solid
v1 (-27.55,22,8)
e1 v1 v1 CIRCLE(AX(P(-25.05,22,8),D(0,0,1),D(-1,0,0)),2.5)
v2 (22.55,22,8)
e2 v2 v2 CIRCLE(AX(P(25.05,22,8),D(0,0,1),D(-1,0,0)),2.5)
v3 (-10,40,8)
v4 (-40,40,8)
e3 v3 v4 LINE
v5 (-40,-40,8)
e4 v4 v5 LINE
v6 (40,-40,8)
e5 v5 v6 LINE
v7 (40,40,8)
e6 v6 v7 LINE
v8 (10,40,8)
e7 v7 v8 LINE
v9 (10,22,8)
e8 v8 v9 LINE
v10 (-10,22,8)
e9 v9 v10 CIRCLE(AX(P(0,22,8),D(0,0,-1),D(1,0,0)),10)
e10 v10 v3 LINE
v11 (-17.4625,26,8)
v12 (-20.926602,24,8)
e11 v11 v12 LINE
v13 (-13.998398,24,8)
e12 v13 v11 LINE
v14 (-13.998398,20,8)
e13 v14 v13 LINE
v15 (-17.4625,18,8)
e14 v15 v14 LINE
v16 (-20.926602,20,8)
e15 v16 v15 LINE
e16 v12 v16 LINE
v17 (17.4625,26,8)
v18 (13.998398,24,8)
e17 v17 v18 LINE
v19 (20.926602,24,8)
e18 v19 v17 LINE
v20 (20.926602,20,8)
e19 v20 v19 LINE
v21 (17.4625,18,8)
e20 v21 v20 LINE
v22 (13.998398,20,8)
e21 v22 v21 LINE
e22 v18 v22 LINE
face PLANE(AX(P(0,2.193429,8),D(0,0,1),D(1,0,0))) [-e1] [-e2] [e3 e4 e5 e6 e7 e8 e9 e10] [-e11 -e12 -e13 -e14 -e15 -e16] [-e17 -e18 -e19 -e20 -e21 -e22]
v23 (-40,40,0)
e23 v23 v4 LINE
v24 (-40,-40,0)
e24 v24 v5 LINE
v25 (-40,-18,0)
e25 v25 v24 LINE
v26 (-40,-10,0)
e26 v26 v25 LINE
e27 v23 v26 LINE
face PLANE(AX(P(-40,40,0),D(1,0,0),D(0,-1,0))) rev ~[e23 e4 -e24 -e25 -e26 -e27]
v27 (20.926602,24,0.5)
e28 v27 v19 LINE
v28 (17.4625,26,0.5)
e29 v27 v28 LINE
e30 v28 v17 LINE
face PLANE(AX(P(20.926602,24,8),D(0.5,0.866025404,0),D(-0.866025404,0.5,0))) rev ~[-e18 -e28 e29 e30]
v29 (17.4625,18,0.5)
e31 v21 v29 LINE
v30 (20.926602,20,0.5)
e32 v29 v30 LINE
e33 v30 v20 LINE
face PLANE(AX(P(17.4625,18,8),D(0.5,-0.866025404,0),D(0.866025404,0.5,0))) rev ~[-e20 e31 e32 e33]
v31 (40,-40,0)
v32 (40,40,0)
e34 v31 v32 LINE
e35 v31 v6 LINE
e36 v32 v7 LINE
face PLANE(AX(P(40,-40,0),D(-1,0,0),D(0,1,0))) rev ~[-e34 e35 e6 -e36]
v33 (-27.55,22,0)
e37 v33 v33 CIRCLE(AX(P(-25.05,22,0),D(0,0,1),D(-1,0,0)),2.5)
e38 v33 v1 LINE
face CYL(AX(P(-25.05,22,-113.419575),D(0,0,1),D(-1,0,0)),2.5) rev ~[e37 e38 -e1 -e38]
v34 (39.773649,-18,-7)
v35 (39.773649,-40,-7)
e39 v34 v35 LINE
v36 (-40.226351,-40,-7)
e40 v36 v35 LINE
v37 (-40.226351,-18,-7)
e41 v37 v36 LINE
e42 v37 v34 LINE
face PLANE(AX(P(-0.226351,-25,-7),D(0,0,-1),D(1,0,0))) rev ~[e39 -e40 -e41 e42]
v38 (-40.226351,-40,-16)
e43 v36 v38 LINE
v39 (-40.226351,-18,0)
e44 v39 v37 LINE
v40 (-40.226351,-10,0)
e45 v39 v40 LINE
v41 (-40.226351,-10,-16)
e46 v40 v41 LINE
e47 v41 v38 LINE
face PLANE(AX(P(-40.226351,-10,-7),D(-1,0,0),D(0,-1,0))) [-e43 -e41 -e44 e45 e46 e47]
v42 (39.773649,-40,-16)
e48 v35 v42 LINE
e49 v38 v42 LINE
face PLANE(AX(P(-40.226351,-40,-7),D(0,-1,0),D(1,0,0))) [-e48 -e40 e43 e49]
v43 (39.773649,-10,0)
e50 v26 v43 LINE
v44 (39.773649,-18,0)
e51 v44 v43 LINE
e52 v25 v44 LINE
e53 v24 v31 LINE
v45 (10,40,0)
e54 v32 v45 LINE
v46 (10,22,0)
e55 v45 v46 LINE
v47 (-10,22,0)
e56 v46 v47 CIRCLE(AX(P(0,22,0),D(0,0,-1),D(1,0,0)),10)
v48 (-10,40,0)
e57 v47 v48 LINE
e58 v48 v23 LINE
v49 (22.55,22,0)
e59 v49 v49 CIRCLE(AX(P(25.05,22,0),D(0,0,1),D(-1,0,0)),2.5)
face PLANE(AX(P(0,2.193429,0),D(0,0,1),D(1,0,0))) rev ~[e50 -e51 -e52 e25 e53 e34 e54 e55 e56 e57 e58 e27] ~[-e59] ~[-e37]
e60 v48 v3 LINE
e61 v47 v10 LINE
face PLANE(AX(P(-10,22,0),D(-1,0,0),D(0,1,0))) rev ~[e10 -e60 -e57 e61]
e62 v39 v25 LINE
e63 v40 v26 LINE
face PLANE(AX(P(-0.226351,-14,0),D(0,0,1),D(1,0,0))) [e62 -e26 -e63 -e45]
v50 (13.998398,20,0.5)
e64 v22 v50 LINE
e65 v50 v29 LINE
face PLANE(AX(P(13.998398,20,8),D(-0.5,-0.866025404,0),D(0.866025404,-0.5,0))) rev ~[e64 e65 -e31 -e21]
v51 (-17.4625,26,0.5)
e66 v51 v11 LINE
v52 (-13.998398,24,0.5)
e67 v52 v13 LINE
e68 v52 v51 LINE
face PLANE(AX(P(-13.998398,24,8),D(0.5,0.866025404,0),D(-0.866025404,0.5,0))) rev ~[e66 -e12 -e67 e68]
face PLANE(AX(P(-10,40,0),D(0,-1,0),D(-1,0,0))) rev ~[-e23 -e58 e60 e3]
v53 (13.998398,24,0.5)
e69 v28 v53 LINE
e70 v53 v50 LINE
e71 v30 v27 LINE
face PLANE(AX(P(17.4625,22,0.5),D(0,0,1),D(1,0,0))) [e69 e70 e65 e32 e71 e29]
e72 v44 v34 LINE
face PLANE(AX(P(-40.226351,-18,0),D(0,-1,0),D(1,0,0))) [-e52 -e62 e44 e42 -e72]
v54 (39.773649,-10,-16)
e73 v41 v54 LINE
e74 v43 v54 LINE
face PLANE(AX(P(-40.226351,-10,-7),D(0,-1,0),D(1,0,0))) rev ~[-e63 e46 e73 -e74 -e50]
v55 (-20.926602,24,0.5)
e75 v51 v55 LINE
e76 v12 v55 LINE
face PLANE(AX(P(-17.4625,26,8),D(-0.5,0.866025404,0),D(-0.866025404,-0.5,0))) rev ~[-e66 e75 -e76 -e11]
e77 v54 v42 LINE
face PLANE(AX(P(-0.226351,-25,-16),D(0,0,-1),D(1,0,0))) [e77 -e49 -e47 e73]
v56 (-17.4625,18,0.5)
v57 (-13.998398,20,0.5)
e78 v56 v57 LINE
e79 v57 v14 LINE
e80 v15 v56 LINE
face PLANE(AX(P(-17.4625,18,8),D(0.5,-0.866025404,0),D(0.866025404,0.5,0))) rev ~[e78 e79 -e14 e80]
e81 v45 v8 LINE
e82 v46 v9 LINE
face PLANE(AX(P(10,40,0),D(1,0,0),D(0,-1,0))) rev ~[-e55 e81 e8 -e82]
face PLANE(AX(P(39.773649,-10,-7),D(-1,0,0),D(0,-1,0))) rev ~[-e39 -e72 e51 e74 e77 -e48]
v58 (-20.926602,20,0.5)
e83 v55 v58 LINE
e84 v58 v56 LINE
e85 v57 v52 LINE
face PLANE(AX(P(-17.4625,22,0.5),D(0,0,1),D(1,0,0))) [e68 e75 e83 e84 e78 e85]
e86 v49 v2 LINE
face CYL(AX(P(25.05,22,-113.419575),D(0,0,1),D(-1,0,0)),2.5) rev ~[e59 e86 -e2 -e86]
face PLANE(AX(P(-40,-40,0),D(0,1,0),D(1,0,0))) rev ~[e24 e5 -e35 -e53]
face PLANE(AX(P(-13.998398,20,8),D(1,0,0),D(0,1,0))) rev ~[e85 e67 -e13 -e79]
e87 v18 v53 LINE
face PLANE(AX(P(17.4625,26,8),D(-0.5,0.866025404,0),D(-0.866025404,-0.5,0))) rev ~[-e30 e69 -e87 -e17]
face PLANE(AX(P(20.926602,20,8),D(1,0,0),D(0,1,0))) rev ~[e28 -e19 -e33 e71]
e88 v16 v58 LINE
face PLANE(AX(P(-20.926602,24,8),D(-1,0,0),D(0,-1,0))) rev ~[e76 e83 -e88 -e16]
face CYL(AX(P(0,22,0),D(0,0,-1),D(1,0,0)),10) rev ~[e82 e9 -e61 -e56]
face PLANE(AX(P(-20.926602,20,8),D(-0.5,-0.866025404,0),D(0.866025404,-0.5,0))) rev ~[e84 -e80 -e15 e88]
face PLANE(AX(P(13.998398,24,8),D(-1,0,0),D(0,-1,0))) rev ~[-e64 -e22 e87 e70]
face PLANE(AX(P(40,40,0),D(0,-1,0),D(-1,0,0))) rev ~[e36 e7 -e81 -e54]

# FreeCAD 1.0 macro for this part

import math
import FreeCAD as App
import Part
import Sketcher
from FreeCAD import Vector
Q = App.Units.Quantity


def add_polygon(sketch, points):
    """Adds a closed chain of lines whose ends are joined by coincident constraints."""
    first, n = sketch.GeometryCount, len(points)
    for a, b in zip(points, points[1:] + points[:1]):
        sketch.addGeometry(Part.LineSegment(App.Vector(*a, 0), App.Vector(*b, 0)), False)
    for i in range(n):
        sketch.addConstraint(Sketcher.Constraint("Coincident", first + i, 2, first + (i + 1) % n, 1))

doc = App.newDocument("Part")
body = doc.addObject("PartDesign::Body", "Body")

sketch1 = body.newObject("Sketcher::SketchObject", "Sketch")
sketch1.AttachmentSupport = (doc.getObject("XY_Plane"), [""])
sketch1.MapMode = "FlatFace"
sketch1.addGeometry([
    Part.LineSegment(Vector(40, -40, 0), Vector(40, 40, 0)),
    Part.LineSegment(Vector(40, 40, 0), Vector(10, 40, 0)),
    Part.LineSegment(Vector(10, 40, 0), Vector(10, 22, 0)),
    Part.ArcOfCircle(Part.Circle(Vector(0, 22, 0), Vector(0, 0, 1), 10), math.radians(180), math.radians(360)),
    Part.LineSegment(Vector(-10, 22, 0), Vector(-10, 40, 0)),
    Part.LineSegment(Vector(-10, 40, 0), Vector(-40, 40, 0)),
    Part.LineSegment(Vector(-40, 40, 0), Vector(-40, -40, 0)),
    Part.LineSegment(Vector(-40, -40, 0), Vector(40, -40, 0)),
], False)
sketch1.addConstraint([
    Sketcher.Constraint("Coincident", 0, 2, 1, 1),
    Sketcher.Constraint("Coincident", 1, 2, 2, 1),
    Sketcher.Constraint("Tangent", 2, 2, 3, 2),
    Sketcher.Constraint("Tangent", 3, 1, 4, 1),
    Sketcher.Constraint("Coincident", 4, 2, 5, 1),
    Sketcher.Constraint("Coincident", 5, 2, 6, 1),
    Sketcher.Constraint("Coincident", 6, 2, 7, 1),
    Sketcher.Constraint("Coincident", 7, 2, 0, 1),
    Sketcher.Constraint("Vertical", 0),
    Sketcher.Constraint("Horizontal", 1),
    Sketcher.Constraint("Vertical", 2),
    Sketcher.Constraint("Vertical", 4),
    Sketcher.Constraint("Horizontal", 5),
    Sketcher.Constraint("Vertical", 6),
    Sketcher.Constraint("Horizontal", 7),
    Sketcher.Constraint("Symmetric", 0, 2, 6, 2, -1, 1),
    Sketcher.Constraint("Symmetric", 1, 2, 4, 2, -2),
    Sketcher.Constraint("Equal", 7, 0),
    Sketcher.Constraint("Radius", 3, Q("10 mm")),
    Sketcher.Constraint("DistanceX", 1, 2, 1, 1, Q("30 mm")),
    Sketcher.Constraint("DistanceY", 2, 2, 2, 1, Q("18 mm")),
])
pad1 = body.newObject("PartDesign::Pad", "Pad")
pad1.Profile = sketch1
pad1.Length = 8

sketch2 = body.newObject("Sketcher::SketchObject", "Sketch001")
sketch2.AttachmentSupport = (doc.getObject("XY_Plane"), [""])
sketch2.MapMode = "FlatFace"
sketch2.addGeometry(Part.Circle(Vector(25.1, 22, 0), Vector(0, 0, 1), 2.5), False)
sketch2.addConstraint([
    Sketcher.Constraint("Diameter", 0, Q("5 mm")),
    Sketcher.Constraint("DistanceY", -1, 1, 0, 3, Q("22 mm")),
    Sketcher.Constraint("DistanceX", -1, 1, 0, 3, Q("25.05 mm")),
])
doc.recompute()
hole = body.newObject("PartDesign::Hole", "Hole")
hole.Profile = sketch2
hole.ThreadType = "None"
hole.Diameter = 5
hole.DepthType = "ThroughAll"
hole.Reversed = True

sketch3 = body.newObject("Sketcher::SketchObject", "Sketch002")
sketch3.AttachmentSupport = (doc.getObject("XY_Plane"), [""])
sketch3.MapMode = "FlatFace"
sketch3.addGeometry(Part.Circle(Vector(-25.1, 22, 0), Vector(0, 0, 1), 2.5), False)
sketch3.addConstraint([
    Sketcher.Constraint("Diameter", 0, Q("5 mm")),
    Sketcher.Constraint("DistanceY", -1, 1, 0, 3, Q("22 mm")),
    Sketcher.Constraint("DistanceX", 0, 3, -1, 1, Q("25.05 mm")),
])
doc.recompute()
hole2 = body.newObject("PartDesign::Hole", "Hole001")
hole2.Profile = sketch3
hole2.ThreadType = "None"
hole2.Diameter = 5
hole2.DepthType = "ThroughAll"
hole2.Reversed = True
body2 = doc.addObject("PartDesign::Body", "Body001")

sketch4 = body2.newObject("Sketcher::SketchObject", "Sketch003")
sketch4.AttachmentSupport = (doc.getObject("XY_Plane001"), [""])
sketch4.MapMode = "FlatFace"
sketch4.AttachmentOffset = App.Placement(Vector(0, 0, 8), App.Rotation())
add_polygon(sketch4, [(-17.5, 18), (-14, 20), (-14, 24), (-17.5, 26), (-20.9, 24), (-20.9, 20)])
sketch4.addConstraint([
    Sketcher.Constraint("Vertical", 1),
    Sketcher.Constraint("Vertical", 4),
    Sketcher.Constraint("Parallel", 0, 3),
    Sketcher.Constraint("Parallel", 2, 5),
    Sketcher.Constraint("Horizontal", 1, 2, 3, 2),
    Sketcher.Constraint("Horizontal", 0, 2, 4, 2),
    Sketcher.Constraint("Vertical", 2, 2, 5, 2),
    Sketcher.Constraint("DistanceY", 1, 1, 1, 2, Q("4 mm")),
    Sketcher.Constraint("Angle", 0, Q("30 deg")),
    Sketcher.Constraint("Distance", 0, Q("4 mm")),
    Sketcher.Constraint("DistanceY", -1, 1, 0, 2, Q("20 mm")),
    Sketcher.Constraint("DistanceX", 0, 2, -1, 1, Q("13.998398 mm")),
])
pad2 = body2.newObject("PartDesign::Pad", "Pad001")
pad2.Profile = sketch4
pad2.Length = 15
pad2.Midplane = True
body3 = doc.addObject("PartDesign::Body", "Body002")

sketch5 = body3.newObject("Sketcher::SketchObject", "Sketch004")
sketch5.AttachmentSupport = (doc.getObject("XY_Plane002"), [""])
sketch5.MapMode = "FlatFace"
sketch5.AttachmentOffset = App.Placement(Vector(0, 0, 8), App.Rotation())
add_polygon(sketch5, [(17.5, 18), (20.9, 20), (20.9, 24), (17.5, 26), (14, 24), (14, 20)])
sketch5.addConstraint([
    Sketcher.Constraint("Vertical", 1),
    Sketcher.Constraint("Vertical", 4),
    Sketcher.Constraint("Parallel", 0, 3),
    Sketcher.Constraint("Parallel", 2, 5),
    Sketcher.Constraint("Horizontal", 1, 2, 3, 2),
    Sketcher.Constraint("Horizontal", 0, 2, 4, 2),
    Sketcher.Constraint("Vertical", 2, 2, 5, 2),
    Sketcher.Constraint("DistanceY", 1, 1, 1, 2, Q("4 mm")),
    Sketcher.Constraint("Angle", 0, Q("30 deg")),
    Sketcher.Constraint("Distance", 0, Q("4 mm")),
    Sketcher.Constraint("DistanceY", -1, 1, 0, 2, Q("20 mm")),
    Sketcher.Constraint("DistanceX", -1, 1, 0, 2, Q("20.926602 mm")),
])
pad3 = body3.newObject("PartDesign::Pad", "Pad002")
pad3.Profile = sketch5
pad3.Length = 15
pad3.Midplane = True
doc.recompute()

boolean = body.newObject("PartDesign::Boolean", "Boolean")
boolean.Type = "Cut"
boolean.addObjects([body2])
doc.recompute()

boolean2 = body.newObject("PartDesign::Boolean", "Boolean001")
boolean2.Type = "Cut"
boolean2.addObjects([body3])

sketch6 = body.newObject("Sketcher::SketchObject", "Sketch005")
sketch6.AttachmentSupport = (doc.getObject("XY_Plane"), [""])
sketch6.MapMode = "FlatFace"
add_polygon(sketch6, [(-40, -10), (-40, -18), (40, -18), (40, -10)])
sketch6.addConstraint([
    Sketcher.Constraint("Vertical", 0),
    Sketcher.Constraint("Horizontal", 1),
    Sketcher.Constraint("Vertical", 2),
    Sketcher.Constraint("Horizontal", 3),
    Sketcher.Constraint("DistanceX", 1, 1, 1, 2, Q("80 mm")),
    Sketcher.Constraint("DistanceY", 0, 2, 0, 1, Q("8 mm")),
    Sketcher.Constraint("DistanceY", 0, 2, -1, 1, Q("18 mm")),
    Sketcher.Constraint("DistanceX", 0, 2, -1, 1, Q("40.226351 mm")),
])
pad4 = body.newObject("PartDesign::Pad", "Pad003")
pad4.Profile = sketch6
pad4.Length = 7
pad4.Reversed = True

sketch7 = body.newObject("Sketcher::SketchObject", "Sketch006")
sketch7.AttachmentSupport = (doc.getObject("XY_Plane"), [""])
sketch7.MapMode = "FlatFace"
sketch7.AttachmentOffset = App.Placement(Vector(0, 0, -7), App.Rotation())
add_polygon(sketch7, [(-40, -40), (-40, -10), (40, -10), (40, -40)])
sketch7.addConstraint([
    Sketcher.Constraint("Vertical", 0),
    Sketcher.Constraint("Horizontal", 1),
    Sketcher.Constraint("Vertical", 2),
    Sketcher.Constraint("Horizontal", 3),
    Sketcher.Constraint("DistanceX", 1, 1, 1, 2, Q("80 mm")),
    Sketcher.Constraint("DistanceY", 0, 1, 0, 2, Q("30 mm")),
    Sketcher.Constraint("DistanceY", 0, 2, -1, 1, Q("10 mm")),
    Sketcher.Constraint("DistanceX", 0, 2, -1, 1, Q("40.226351 mm")),
])
pad5 = body.newObject("PartDesign::Pad", "Pad004")
pad5.Profile = sketch7
pad5.Length = 9
pad5.Reversed = True

doc.recompute()
